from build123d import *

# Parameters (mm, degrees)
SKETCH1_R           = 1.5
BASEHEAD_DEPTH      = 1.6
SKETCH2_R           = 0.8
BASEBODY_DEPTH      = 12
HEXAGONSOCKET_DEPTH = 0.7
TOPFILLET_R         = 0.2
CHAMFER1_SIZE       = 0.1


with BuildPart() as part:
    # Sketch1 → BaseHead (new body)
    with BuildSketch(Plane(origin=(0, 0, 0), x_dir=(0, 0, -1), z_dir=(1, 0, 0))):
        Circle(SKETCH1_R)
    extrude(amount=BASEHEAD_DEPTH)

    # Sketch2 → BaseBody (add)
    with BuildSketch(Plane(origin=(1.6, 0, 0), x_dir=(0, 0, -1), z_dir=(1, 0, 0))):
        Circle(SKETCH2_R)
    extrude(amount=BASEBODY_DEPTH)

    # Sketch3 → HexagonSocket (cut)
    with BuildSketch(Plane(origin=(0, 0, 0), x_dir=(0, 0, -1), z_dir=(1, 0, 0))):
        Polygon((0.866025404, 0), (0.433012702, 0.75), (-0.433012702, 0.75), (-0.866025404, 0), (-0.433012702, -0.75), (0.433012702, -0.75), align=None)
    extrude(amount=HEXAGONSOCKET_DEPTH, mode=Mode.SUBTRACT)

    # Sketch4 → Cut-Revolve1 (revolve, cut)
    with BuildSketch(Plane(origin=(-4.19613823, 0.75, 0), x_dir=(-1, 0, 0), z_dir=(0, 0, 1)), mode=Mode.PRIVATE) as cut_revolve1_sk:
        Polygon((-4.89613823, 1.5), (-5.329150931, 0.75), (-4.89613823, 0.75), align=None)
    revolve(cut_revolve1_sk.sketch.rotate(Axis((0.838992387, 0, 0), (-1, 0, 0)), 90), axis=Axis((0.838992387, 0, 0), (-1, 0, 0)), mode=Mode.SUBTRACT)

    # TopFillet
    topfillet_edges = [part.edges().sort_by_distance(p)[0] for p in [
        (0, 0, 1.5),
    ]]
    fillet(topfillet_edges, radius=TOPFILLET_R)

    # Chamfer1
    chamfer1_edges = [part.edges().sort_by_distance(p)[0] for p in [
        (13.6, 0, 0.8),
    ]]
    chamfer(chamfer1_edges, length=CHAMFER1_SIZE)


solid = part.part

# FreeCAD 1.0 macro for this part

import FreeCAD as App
import Part
import Sketcher
Q = App.Units.Quantity


def edges_at(feature, points):
    """Names of the edges that pass closest to the given points."""
    edges = feature.Shape.Edges
    near = lambda p: min(range(len(edges)), key=lambda i: edges[i].distToShape(Part.Vertex(*p))[0])
    return sorted({f"Edge{near(p) + 1}" for p in points})


def add_polygon(sketch, points):
    """Adds a closed chain of lines whose ends are joined by coincident constraints."""
    first, n = sketch.GeometryCount, len(points)
    for a, b in zip(points, points[1:] + points[:1]):
        sketch.addGeometry(Part.LineSegment(App.Vector(*a, 0), App.Vector(*b, 0)), False)
    for i in range(n):
        sketch.addConstraint(Sketcher.Constraint("Coincident", first + i, 2, first + (i + 1) % n, 1))

doc = App.newDocument("Part")
body = doc.addObject("PartDesign::Body", "Body")

sketch1 = doc.addObject("Sketcher::SketchObject", "Sketch")
body.addObject(sketch1)
sketch1.AttachmentSupport = (doc.YZ_Plane, [""])
sketch1.MapMode = "FlatFace"
sketch1.addGeometry(Part.Circle(App.Vector(0, 0, 0), App.Vector(0, 0, 1), 1.5), False)
sketch1.addConstraint([
    Sketcher.Constraint("Coincident", 0, 3, -1, 1),
    Sketcher.Constraint("Diameter", 0, 3.0),
])
pad1 = doc.addObject("PartDesign::Pad", "Pad")
body.addObject(pad1)
pad1.Profile = sketch1
pad1.Length = 1.6

sketch2 = doc.addObject("Sketcher::SketchObject", "Sketch001")
body.addObject(sketch2)
sketch2.AttachmentSupport = (doc.YZ_Plane, [""])
sketch2.MapMode = "FlatFace"
sketch2.AttachmentOffset = App.Placement(App.Vector(0, 0, 1.6), App.Rotation())
sketch2.addGeometry(Part.Circle(App.Vector(0, 0, 0), App.Vector(0, 0, 1), 0.8), False)
sketch2.addConstraint([
    Sketcher.Constraint("Coincident", 0, 3, -1, 1),
    Sketcher.Constraint("Diameter", 0, 1.6),
])
pad2 = doc.addObject("PartDesign::Pad", "Pad001")
body.addObject(pad2)
pad2.Profile = sketch2
pad2.Length = 12

sketch3 = doc.addObject("Sketcher::SketchObject", "Sketch002")
body.addObject(sketch3)
sketch3.AttachmentSupport = (doc.YZ_Plane, [""])
sketch3.MapMode = "FlatFace"
add_polygon(sketch3, [(0, -0.9), (0.8, -0.4), (0.8, 0.4), (0, 0.9), (-0.8, 0.4), (-0.8, -0.4)])
sketch3.addConstraint([
    Sketcher.Constraint("Vertical", 1),
    Sketcher.Constraint("Vertical", 4),
    Sketcher.Constraint("Symmetric", 0, 2, 3, 2, -1, 1),
    Sketcher.Constraint("Symmetric", 2, 2, 5, 2, -1, 1),
    Sketcher.Constraint("PointOnObject", 2, 2, -2),
    Sketcher.Constraint("Parallel", 2, 5),
    Sketcher.Constraint("Horizontal", 1, 2, 3, 2),
    Sketcher.Constraint("Angle", 0, Q("30 deg")),
    Sketcher.Constraint("DistanceX", 3, 2, 1, 2, 1.5),
    Sketcher.Constraint("DistanceY", 1, 1, 1, 2, 0.866025),
])
pocket1 = doc.addObject("PartDesign::Pocket", "Pocket")
body.addObject(pocket1)
pocket1.Profile = sketch3
pocket1.Length = 0.7
pocket1.Reversed = True

sketch4 = doc.addObject("Sketcher::SketchObject", "Sketch003")
body.addObject(sketch4)
sketch4.AttachmentSupport = (doc.XY_Plane, [""])
sketch4.MapMode = "FlatFace"
add_polygon(sketch4, [(0.7, -0.75), (1.13, 0), (0.7, 0)])
sketch4.addConstraint([
    Sketcher.Constraint("Horizontal", 1),
    Sketcher.Constraint("Vertical", 2),
    Sketcher.Constraint("PointOnObject", 0, 2, -1),
    Sketcher.Constraint("Angle", 0, Q("60 deg")),
    Sketcher.Constraint("DistanceY", 2, 2, 2, 1, 0.75),
    Sketcher.Constraint("DistanceX", -1, 1, 1, 2, 0.7),
])
groove = doc.addObject("PartDesign::Groove", "Groove")
body.addObject(groove)
groove.Profile = sketch4
groove.ReferenceAxis = (sketch4, ["H_Axis"])
groove.Angle = 360
doc.recompute()

fillet = doc.addObject("PartDesign::Fillet", "Fillet")
body.addObject(fillet)
fillet.Base = (groove, edges_at(groove, [(0, 0, 1.5)]))
fillet.Radius = 0.2
doc.recompute()

chamfer = doc.addObject("PartDesign::Chamfer", "Chamfer")
body.addObject(chamfer)
chamfer.Base = (fillet, edges_at(fillet, [(13.6, 0, 0.8)]))
chamfer.Size = 0.1

doc.recompute()
